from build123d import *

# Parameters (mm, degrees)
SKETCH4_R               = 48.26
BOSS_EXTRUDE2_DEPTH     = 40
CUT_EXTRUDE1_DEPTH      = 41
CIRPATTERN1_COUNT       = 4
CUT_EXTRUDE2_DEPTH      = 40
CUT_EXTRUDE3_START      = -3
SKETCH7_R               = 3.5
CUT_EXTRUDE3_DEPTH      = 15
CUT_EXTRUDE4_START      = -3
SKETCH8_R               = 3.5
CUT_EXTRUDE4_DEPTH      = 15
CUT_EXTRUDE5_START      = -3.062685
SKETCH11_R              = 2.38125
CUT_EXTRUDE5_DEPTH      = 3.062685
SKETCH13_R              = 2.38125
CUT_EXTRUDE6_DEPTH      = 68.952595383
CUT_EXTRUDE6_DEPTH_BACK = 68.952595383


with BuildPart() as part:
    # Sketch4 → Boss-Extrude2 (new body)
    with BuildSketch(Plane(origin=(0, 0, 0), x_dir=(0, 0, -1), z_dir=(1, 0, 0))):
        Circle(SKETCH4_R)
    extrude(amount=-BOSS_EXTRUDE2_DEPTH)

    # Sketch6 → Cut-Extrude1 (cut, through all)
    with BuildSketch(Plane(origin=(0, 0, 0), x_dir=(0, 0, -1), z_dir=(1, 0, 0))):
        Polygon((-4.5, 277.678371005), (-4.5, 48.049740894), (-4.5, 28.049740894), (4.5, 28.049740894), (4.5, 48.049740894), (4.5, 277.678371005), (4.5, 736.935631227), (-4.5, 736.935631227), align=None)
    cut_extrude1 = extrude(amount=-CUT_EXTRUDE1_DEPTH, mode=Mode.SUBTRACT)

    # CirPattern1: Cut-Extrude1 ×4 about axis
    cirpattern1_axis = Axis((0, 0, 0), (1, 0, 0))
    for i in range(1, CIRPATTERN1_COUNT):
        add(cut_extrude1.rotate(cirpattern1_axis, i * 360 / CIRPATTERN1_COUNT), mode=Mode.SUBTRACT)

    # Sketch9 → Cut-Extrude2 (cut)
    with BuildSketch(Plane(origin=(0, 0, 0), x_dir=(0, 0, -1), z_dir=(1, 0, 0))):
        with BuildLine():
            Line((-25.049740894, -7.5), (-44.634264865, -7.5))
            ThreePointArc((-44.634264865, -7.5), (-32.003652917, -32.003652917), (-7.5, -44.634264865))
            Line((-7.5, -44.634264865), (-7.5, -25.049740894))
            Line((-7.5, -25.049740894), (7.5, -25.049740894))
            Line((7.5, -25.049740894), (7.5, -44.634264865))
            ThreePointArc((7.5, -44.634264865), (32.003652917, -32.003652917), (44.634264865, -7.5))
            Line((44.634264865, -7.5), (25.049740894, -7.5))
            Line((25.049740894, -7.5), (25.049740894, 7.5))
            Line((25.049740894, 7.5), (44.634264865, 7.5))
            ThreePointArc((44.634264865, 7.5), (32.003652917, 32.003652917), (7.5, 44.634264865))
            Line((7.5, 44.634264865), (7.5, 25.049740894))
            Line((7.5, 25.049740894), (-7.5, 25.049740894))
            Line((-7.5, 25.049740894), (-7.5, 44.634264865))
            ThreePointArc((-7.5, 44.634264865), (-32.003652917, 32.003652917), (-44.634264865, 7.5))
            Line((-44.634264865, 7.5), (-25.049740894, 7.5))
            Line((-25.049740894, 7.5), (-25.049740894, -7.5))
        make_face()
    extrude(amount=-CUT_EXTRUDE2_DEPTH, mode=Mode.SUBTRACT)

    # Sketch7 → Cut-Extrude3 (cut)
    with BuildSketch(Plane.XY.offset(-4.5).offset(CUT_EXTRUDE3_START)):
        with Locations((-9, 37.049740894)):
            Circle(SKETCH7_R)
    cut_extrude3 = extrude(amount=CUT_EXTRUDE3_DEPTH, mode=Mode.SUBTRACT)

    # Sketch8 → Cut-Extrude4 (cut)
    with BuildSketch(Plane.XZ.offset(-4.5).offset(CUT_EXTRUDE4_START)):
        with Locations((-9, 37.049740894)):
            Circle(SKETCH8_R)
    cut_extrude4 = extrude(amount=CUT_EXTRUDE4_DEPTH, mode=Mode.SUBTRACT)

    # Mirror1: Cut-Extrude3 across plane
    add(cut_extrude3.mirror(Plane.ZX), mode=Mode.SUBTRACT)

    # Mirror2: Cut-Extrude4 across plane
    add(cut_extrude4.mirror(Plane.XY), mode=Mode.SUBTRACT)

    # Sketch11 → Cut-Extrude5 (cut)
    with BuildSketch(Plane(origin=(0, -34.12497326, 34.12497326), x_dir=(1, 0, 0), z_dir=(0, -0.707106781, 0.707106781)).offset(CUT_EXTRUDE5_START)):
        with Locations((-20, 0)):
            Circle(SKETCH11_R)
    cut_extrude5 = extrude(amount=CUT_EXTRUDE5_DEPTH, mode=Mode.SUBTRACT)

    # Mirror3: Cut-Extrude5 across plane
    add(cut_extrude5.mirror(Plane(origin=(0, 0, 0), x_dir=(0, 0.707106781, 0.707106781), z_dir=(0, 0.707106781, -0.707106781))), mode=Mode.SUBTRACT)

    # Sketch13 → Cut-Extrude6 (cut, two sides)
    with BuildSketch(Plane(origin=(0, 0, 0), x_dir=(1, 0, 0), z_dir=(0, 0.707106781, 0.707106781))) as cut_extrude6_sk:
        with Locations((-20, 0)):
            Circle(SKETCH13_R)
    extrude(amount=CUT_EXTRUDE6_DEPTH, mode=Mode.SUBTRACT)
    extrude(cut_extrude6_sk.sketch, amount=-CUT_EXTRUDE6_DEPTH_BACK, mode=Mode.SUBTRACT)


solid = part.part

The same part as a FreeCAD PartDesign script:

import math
import FreeCAD as App
import Part
import Sketcher

V = App.Vector

doc = App.newDocument("Part")
body = doc.addObject("PartDesign::Body", "Body")

sketch1 = body.newObject("Sketcher::SketchObject", "Sketch")
sketch1.AttachmentSupport = (doc.getObject("YZ_Plane"), [""])
sketch1.MapMode = "FlatFace"
sketch1.addGeometry(Part.Circle(V(0, 0, 0), V(0, 0, 1), 48), False)
sketch1.addConstraint([
    Sketcher.Constraint("Coincident", 0, 3, -1, 1),
    Sketcher.Constraint("Diameter", 0, 96.52),
])
pad1 = body.newObject("PartDesign::Pad", "Pad")
pad1.Profile = sketch1
pad1.Length = 40
pad1.Reversed = True

sketch2 = body.newObject("Sketcher::SketchObject", "Sketch001")
sketch2.AttachmentSupport = (doc.getObject("YZ_Plane"), [""])
sketch2.MapMode = "FlatFace"
sketch2.addGeometry([
    Part.LineSegment(V(28, 4, 0), V(28, -4, 0)),
    Part.LineSegment(V(28, -4, 0), V(737, -4, 0)),
    Part.LineSegment(V(737, -4, 0), V(737, 4, 0)),
    Part.LineSegment(V(737, 4, 0), V(28, 4, 0)),
], False)
sketch2.addConstraint([
    Sketcher.Constraint("Coincident", 0, 2, 1, 1),
    Sketcher.Constraint("Coincident", 1, 2, 2, 1),
    Sketcher.Constraint("Coincident", 2, 2, 3, 1),
    Sketcher.Constraint("Coincident", 3, 2, 0, 1),
    Sketcher.Constraint("Vertical", 0),
    Sketcher.Constraint("Horizontal", 1),
    Sketcher.Constraint("Vertical", 2),
    Sketcher.Constraint("Horizontal", 3),
    Sketcher.Constraint("DistanceY", 0, 2, 0, 1, 9.0),
    Sketcher.Constraint("DistanceY", 0, 2, -1, 1, 4.5),
    Sketcher.Constraint("DistanceX", 1, 1, 1, 2, 708.88589),
    Sketcher.Constraint("DistanceX", -1, 1, 0, 2, 28.049741),
])
pocket1 = body.newObject("PartDesign::Pocket", "Pocket")
pocket1.Profile = sketch2
pocket1.Type = "ThroughAll"
doc.recompute()

polarpattern = body.newObject("PartDesign::PolarPattern", "PolarPattern")
polarpattern.Originals = [pocket1]
polarpattern.Axis = (doc.getObject("X_Axis"), [""])
polarpattern.Angle = 360
polarpattern.Occurrences = 4
body.Tip = polarpattern

sketch3 = body.newObject("Sketcher::SketchObject", "Sketch002")
sketch3.AttachmentSupport = (doc.getObject("YZ_Plane"), [""])
sketch3.MapMode = "FlatFace"
sketch3.addGeometry([
    Part.LineSegment(V(-8, 25, 0), V(-8, 45, 0)),
    Part.ArcOfCircle(Part.Circle(V(0, 0, 0), V(0, 0, 1), 45), math.radians(100), math.radians(170)),
    Part.LineSegment(V(-45, 8, 0), V(-25, 8, 0)),
    Part.LineSegment(V(-25, 8, 0), V(-25, -8, 0)),
    Part.LineSegment(V(-25, -8, 0), V(-45, -8, 0)),
    Part.ArcOfCircle(Part.Circle(V(0, 0, 0), V(0, 0, 1), 45), math.radians(-170), math.radians(-100)),
    Part.LineSegment(V(-8, -45, 0), V(-8, -25, 0)),
    Part.LineSegment(V(-8, -25, 0), V(8, -25, 0)),
    Part.LineSegment(V(8, -25, 0), V(8, -45, 0)),
    Part.ArcOfCircle(Part.Circle(V(0, 0, 0), V(0, 0, 1), 45), math.radians(-80), math.radians(-10)),
    Part.LineSegment(V(45, -8, 0), V(25, -8, 0)),
    Part.LineSegment(V(25, -8, 0), V(25, 8, 0)),
    Part.LineSegment(V(25, 8, 0), V(45, 8, 0)),
    Part.ArcOfCircle(Part.Circle(V(0, 0, 0), V(0, 0, 1), 45), math.radians(10), math.radians(80)),
    Part.LineSegment(V(8, 45, 0), V(8, 25, 0)),
    Part.LineSegment(V(8, 25, 0), V(-8, 25, 0)),
], False)
sketch3.addConstraint([
    Sketcher.Constraint("Coincident", 0, 2, 1, 1),
    Sketcher.Constraint("Coincident", 1, 2, 2, 1),
    Sketcher.Constraint("Coincident", 2, 2, 3, 1),
    Sketcher.Constraint("Coincident", 3, 2, 4, 1),
    Sketcher.Constraint("Coincident", 4, 2, 5, 1),
    Sketcher.Constraint("Coincident", 5, 2, 6, 1),
    Sketcher.Constraint("Coincident", 6, 2, 7, 1),
    Sketcher.Constraint("Coincident", 7, 2, 8, 1),
    Sketcher.Constraint("Coincident", 8, 2, 9, 1),
    Sketcher.Constraint("Coincident", 9, 2, 10, 1),
    Sketcher.Constraint("Coincident", 10, 2, 11, 1),
    Sketcher.Constraint("Coincident", 11, 2, 12, 1),
    Sketcher.Constraint("Coincident", 12, 2, 13, 1),
    Sketcher.Constraint("Coincident", 13, 2, 14, 1),
    Sketcher.Constraint("Coincident", 14, 2, 15, 1),
    Sketcher.Constraint("Coincident", 15, 2, 0, 1),
    Sketcher.Constraint("Vertical", 0),
    Sketcher.Constraint("Horizontal", 2),
    Sketcher.Constraint("Vertical", 3),
    Sketcher.Constraint("Horizontal", 4),
    Sketcher.Constraint("Vertical", 6),
    Sketcher.Constraint("Horizontal", 7),
    Sketcher.Constraint("Vertical", 8),
    Sketcher.Constraint("Horizontal", 10),
    Sketcher.Constraint("Vertical", 11),
    Sketcher.Constraint("Horizontal", 12),
    Sketcher.Constraint("Vertical", 14),
    Sketcher.Constraint("Horizontal", 15),
    Sketcher.Constraint("Coincident", 1, 3, -1, 1),
    Sketcher.Constraint("Coincident", 5, 3, -1, 1),
    Sketcher.Constraint("Coincident", 9, 3, -1, 1),
    Sketcher.Constraint("Coincident", 13, 3, -1, 1),
    Sketcher.Constraint("Equal", 1, 5),
    Sketcher.Constraint("Equal", 5, 9),
    Sketcher.Constraint("Equal", 9, 13),
    Sketcher.Constraint("Symmetric", 2, 2, 10, 2, -1, 1),
    Sketcher.Constraint("Symmetric", 6, 2, 14, 2, -1, 1),
    Sketcher.Constraint("Horizontal", 5, 2, 8, 2),
    Sketcher.Constraint("Horizontal", 4, 2, 9, 2),
    Sketcher.Constraint("Horizontal", 2, 2, 11, 2),
    Sketcher.Constraint("Horizontal", 0, 2, 13, 2),
    Sketcher.Constraint("Equal", 12, 0),
    Sketcher.Constraint("Equal", 15, 3),
    Sketcher.Constraint("DistanceX", 7, 1, 7, 2, 15.0),
    Sketcher.Constraint("Radius", 1, 45.26),
    Sketcher.Constraint("DistanceX", 2, 1, 2, 2, 19.584524),
])
pocket2 = body.newObject("PartDesign::Pocket", "Pocket001")
pocket2.Profile = sketch3
pocket2.Length = 40

sketch4 = body.newObject("Sketcher::SketchObject", "Sketch003")
sketch4.AttachmentSupport = (doc.getObject("XY_Plane"), [""])
sketch4.MapMode = "FlatFace"
sketch4.AttachmentOffset = App.Placement(V(0, 0, -7.5), App.Rotation())
sketch4.addGeometry(Part.Circle(V(-9, 37, 0), V(0, 0, 1), 3.5), False)
sketch4.addConstraint([
    Sketcher.Constraint("Diameter", 0, 7.0),
    Sketcher.Constraint("DistanceX", 0, 3, -1, 1, 9.0),
    Sketcher.Constraint("DistanceY", -1, 1, 0, 3, 37.049741),
])
pocket3 = body.newObject("PartDesign::Pocket", "Pocket002")
pocket3.Profile = sketch4
pocket3.Length = 15
pocket3.Reversed = True

sketch5 = body.newObject("Sketcher::SketchObject", "Sketch004")
sketch5.AttachmentSupport = (doc.getObject("XZ_Plane"), [""])
sketch5.MapMode = "FlatFace"
sketch5.AttachmentOffset = App.Placement(V(0, 0, -7.5), App.Rotation())
sketch5.addGeometry(Part.Circle(V(-9, 37, 0), V(0, 0, 1), 3.5), False)
sketch5.addConstraint([
    Sketcher.Constraint("Diameter", 0, 7.0),
    Sketcher.Constraint("DistanceX", 0, 3, -1, 1, 9.0),
    Sketcher.Constraint("DistanceY", -1, 1, 0, 3, 37.049741),
])
pocket4 = body.newObject("PartDesign::Pocket", "Pocket003")
pocket4.Profile = sketch5
pocket4.Length = 15
pocket4.Reversed = True
doc.recompute()

mirrored = body.newObject("PartDesign::Mirrored", "Mirrored")
mirrored.Originals = [pocket3]
mirrored.MirrorPlane = (doc.getObject("XZ_Plane"), [""])
body.Tip = mirrored
doc.recompute()

mirrored2 = body.newObject("PartDesign::Mirrored", "Mirrored001")
mirrored2.Originals = [pocket4]
mirrored2.MirrorPlane = (doc.getObject("XY_Plane"), [""])
body.Tip = mirrored2

sketch6 = body.newObject("Sketcher::SketchObject", "Sketch005")
sketch6.Placement = App.Placement(V(0, -31.959328, 31.959328), App.Rotation(V(1, 0, 0), V(0, 0.707106781, 0.707106781), V(0, -0.707106781, 0.707106781), "ZXY"))
sketch6.addGeometry(Part.Circle(V(-20, 0, 0), V(0, 0, 1), 2.4), False)
sketch6.addConstraint([
    Sketcher.Constraint("PointOnObject", 0, 3, -1),
    Sketcher.Constraint("DistanceX", 0, 3, -1, 1, 20.0),
    Sketcher.Constraint("Diameter", 0, 4.7625),
])
pocket5 = body.newObject("PartDesign::Pocket", "Pocket004")
pocket5.Profile = sketch6
pocket5.Length = 3.062685
pocket5.Reversed = True
doc.recompute()

datumplane = body.newObject("PartDesign::Plane", "DatumPlane")
datumplane.Placement = App.Placement(V(0, 0, 0), App.Rotation(V(0, -0.707106781, -0.707106781), V(-1, 0, 0), V(0, 0.707106781, -0.707106781), "ZXY"))
mirrored3 = body.newObject("PartDesign::Mirrored", "Mirrored002")
mirrored3.Originals = [pocket5]
mirrored3.MirrorPlane = (datumplane, [""])
body.Tip = mirrored3

sketch7 = body.newObject("Sketcher::SketchObject", "Sketch006")
sketch7.Placement = App.Placement(V(0, 0, 0), App.Rotation(V(1, 0, 0), V(0, 0.707106781, -0.707106781), V(0, 0.707106781, 0.707106781), "ZXY"))
sketch7.addGeometry(Part.Circle(V(-20, 0, 0), V(0, 0, 1), 2.4), False)
sketch7.addConstraint([
    Sketcher.Constraint("PointOnObject", 0, 3, -1),
    Sketcher.Constraint("DistanceX", 0, 3, -1, 1, 20.0),
    Sketcher.Constraint("Diameter", 0, 4.7625),
])
pocket6 = body.newObject("PartDesign::Pocket", "Pocket005")
pocket6.Profile = sketch7
pocket6.Type = "ThroughAll"
pocket6.Midplane = True

doc.recompute()
